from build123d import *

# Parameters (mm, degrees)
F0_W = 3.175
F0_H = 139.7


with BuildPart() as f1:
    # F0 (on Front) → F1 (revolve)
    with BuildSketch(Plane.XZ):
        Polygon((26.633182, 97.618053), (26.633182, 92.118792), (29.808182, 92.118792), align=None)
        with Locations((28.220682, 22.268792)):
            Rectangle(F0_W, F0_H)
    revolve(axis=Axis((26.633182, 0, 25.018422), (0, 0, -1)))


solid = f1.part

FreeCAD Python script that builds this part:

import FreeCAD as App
import Part
import Sketcher

V = App.Vector
Q = App.Units.Quantity

doc = App.newDocument("Part")
params = doc.addObject("Spreadsheet::Sheet", "Params")
for row, (alias, value) in enumerate([
    ("sketch1_height", "5.5 in"),
    ("sketch1_length", "0.25 in"),
    ("revolution_angle", "360 deg"),
], start=1):
    params.set(f"A{row}", alias)
    params.set(f"B{row}", "=" + value)
    params.setAlias(f"B{row}", alias)

body = doc.addObject("PartDesign::Body", "Body")

# Sketch on XZ plane
sketch1 = body.newObject("Sketcher::SketchObject", "Sketch")
sketch1.AttachmentSupport = (doc.getObject("XZ_Plane"), [""])
sketch1.MapMode = "FlatFace"
sketch1.addGeometry(Part.LineSegment(V(26.6, 97.6, 0), V(26.6, -47.6, 0)), False)
sketch1.addGeometry(Part.LineSegment(V(26.6, -47.6, 0), V(29.8, -47.6, 0)), False)
sketch1.addGeometry(Part.LineSegment(V(29.8, -47.6, 0), V(29.8, 92.1, 0)), False)
sketch1.addGeometry(Part.LineSegment(V(29.8, 92.1, 0), V(26.6, 97.6, 0)), False)
sketch1.addGeometry(Part.LineSegment(V(26.6, 97.6, 0), V(26.6, -47.6, 0)), True)  # axis
sketch1.addConstraint(Sketcher.Constraint("Coincident", 0, 2, 1, 1))
sketch1.addConstraint(Sketcher.Constraint("Coincident", 1, 2, 2, 1))
sketch1.addConstraint(Sketcher.Constraint("Coincident", 2, 2, 3, 1))
sketch1.addConstraint(Sketcher.Constraint("Coincident", 3, 2, 0, 1))
sketch1.addConstraint(Sketcher.Constraint("Vertical", 0))
sketch1.addConstraint(Sketcher.Constraint("Horizontal", 1))
sketch1.addConstraint(Sketcher.Constraint("Vertical", 2))
sketch1.addConstraint(Sketcher.Constraint("Vertical", 4))
sketch1.addConstraint(Sketcher.Constraint("Coincident", 4, 1, 3, 2))
sketch1.addConstraint(Sketcher.Constraint("Horizontal", 1, 2, 4, 2))
sketch1.addConstraint(Sketcher.Constraint("DistanceY", 2, 1, 2, 2, Q("5.5 in")))
sketch1.addConstraint(Sketcher.Constraint("Angle", 3, Q("120.000001 deg")))
sketch1.addConstraint(Sketcher.Constraint("Distance", 3, Q("0.25 in")))
sketch1.addConstraint(Sketcher.Constraint("DistanceX", -1, 1, 1, 2, Q("29.808182 mm")))
sketch1.addConstraint(Sketcher.Constraint("DistanceY", -1, 1, 2, 2, Q("92.118792 mm")))
sketch1.setExpression("Constraints[10]", "Params.sketch1_height")
sketch1.setExpression("Constraints[12]", "Params.sketch1_length")
revolution = body.newObject("PartDesign::Revolution", "Revolution")
revolution.Profile = sketch1
revolution.ReferenceAxis = (sketch1, ["Axis0"])
revolution.setExpression("Angle", "Params.revolution_angle")

doc.recompute()
